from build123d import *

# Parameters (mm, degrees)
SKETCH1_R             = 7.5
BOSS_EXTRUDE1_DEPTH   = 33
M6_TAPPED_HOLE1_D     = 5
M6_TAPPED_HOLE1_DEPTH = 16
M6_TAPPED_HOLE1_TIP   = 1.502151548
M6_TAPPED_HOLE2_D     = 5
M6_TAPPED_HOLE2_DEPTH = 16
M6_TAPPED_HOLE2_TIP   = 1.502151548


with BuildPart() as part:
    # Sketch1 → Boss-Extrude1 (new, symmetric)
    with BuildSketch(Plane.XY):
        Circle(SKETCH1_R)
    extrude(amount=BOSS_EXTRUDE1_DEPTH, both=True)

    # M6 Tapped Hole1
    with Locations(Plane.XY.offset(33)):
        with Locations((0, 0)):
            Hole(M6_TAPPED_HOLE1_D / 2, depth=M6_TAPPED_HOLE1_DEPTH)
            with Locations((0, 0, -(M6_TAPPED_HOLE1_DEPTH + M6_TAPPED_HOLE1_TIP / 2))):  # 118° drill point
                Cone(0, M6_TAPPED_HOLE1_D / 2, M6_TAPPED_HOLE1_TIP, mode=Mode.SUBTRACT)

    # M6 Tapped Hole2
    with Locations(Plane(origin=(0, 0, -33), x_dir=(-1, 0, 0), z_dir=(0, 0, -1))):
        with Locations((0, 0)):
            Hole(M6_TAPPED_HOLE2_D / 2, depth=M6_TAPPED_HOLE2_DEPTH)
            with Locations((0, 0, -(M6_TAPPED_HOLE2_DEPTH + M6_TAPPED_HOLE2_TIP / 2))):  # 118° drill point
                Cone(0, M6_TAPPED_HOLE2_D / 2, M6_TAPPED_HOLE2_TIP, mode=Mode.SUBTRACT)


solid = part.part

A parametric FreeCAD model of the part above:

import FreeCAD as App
import Part
import Sketcher

V = App.Vector

doc = App.newDocument("Part")
body = doc.addObject("PartDesign::Body", "Body")

# Sketch on XY plane
sketch1 = body.newObject("Sketcher::SketchObject", "Sketch")
sketch1.AttachmentSupport = (doc.getObject("XY_Plane"), [""])
sketch1.MapMode = "FlatFace"
sketch1.addGeometry(Part.Circle(V(0, 0, 0), V(0, 0, 1), 7.5), False)
sketch1.addConstraint(Sketcher.Constraint("Coincident", 0, 3, -1, 1))
sketch1.addConstraint(Sketcher.Constraint("Diameter", 0, 15.0))
pad1 = body.newObject("PartDesign::Pad", "Pad")
pad1.Profile = sketch1
pad1.Length = 66
pad1.Midplane = True

# Sketch on XY plane
sketch2 = body.newObject("Sketcher::SketchObject", "Sketch001")
sketch2.AttachmentSupport = (doc.getObject("XY_Plane"), [""])
sketch2.MapMode = "FlatFace"
sketch2.AttachmentOffset = App.Placement(V(0, 0, 33), App.Rotation())
sketch2.addGeometry(Part.Circle(V(0, 0, 0), V(0, 0, 1), 2.5), False)
sketch2.addConstraint(Sketcher.Constraint("Coincident", 0, 3, -1, 1))
sketch2.addConstraint(Sketcher.Constraint("Diameter", 0, 5.0))
doc.recompute()
hole = body.newObject("PartDesign::Hole", "Hole")
hole.Profile = sketch2
hole.ThreadType = "None"
hole.Diameter = 5
hole.DepthType = "Dimension"
hole.Depth = 16
hole.DrillPoint = "Angled"
hole.DrillPointAngle = 118

# Sketch on XY plane
sketch3 = body.newObject("Sketcher::SketchObject", "Sketch002")
sketch3.AttachmentSupport = (doc.getObject("XY_Plane"), [""])
sketch3.MapMode = "FlatFace"
sketch3.AttachmentOffset = App.Placement(V(0, 0, -33), App.Rotation())
sketch3.addGeometry(Part.Circle(V(0, 0, 0), V(0, 0, 1), 2.5), False)
sketch3.addConstraint(Sketcher.Constraint("Coincident", 0, 3, -1, 1))
sketch3.addConstraint(Sketcher.Constraint("Diameter", 0, 5.0))
doc.recompute()
hole2 = body.newObject("PartDesign::Hole", "Hole001")
hole2.Profile = sketch3
hole2.ThreadType = "None"
hole2.Diameter = 5
hole2.DepthType = "Dimension"
hole2.Depth = 16
hole2.DrillPoint = "Angled"
hole2.DrillPointAngle = 118
hole2.Reversed = True

doc.recompute()
